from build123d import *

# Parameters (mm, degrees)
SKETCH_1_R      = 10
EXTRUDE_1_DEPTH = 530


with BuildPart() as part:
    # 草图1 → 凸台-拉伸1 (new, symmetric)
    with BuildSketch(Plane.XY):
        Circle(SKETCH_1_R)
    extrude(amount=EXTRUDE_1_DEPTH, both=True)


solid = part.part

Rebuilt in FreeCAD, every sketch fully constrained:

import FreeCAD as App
import Part
import Sketcher
Q = App.Units.Quantity

doc = App.newDocument("Part")
body = doc.addObject("PartDesign::Body", "Body")

sketch1 = body.newObject("Sketcher::SketchObject", "Sketch")
sketch1.AttachmentSupport = (doc.getObject("XY_Plane"), [""])
sketch1.MapMode = "FlatFace"
sketch1.addGeometry(Part.Circle(App.Vector(0, 0, 0), App.Vector(0, 0, 1), 10), False)
sketch1.addConstraint(Sketcher.Constraint("Coincident", 0, 3, -1, 1))
sketch1.addConstraint(Sketcher.Constraint("Diameter", 0, Q("20 mm")))
pad1 = body.newObject("PartDesign::Pad", "Pad")
pad1.Profile = sketch1
pad1.Length = 1060
pad1.Midplane = True

doc.recompute()
